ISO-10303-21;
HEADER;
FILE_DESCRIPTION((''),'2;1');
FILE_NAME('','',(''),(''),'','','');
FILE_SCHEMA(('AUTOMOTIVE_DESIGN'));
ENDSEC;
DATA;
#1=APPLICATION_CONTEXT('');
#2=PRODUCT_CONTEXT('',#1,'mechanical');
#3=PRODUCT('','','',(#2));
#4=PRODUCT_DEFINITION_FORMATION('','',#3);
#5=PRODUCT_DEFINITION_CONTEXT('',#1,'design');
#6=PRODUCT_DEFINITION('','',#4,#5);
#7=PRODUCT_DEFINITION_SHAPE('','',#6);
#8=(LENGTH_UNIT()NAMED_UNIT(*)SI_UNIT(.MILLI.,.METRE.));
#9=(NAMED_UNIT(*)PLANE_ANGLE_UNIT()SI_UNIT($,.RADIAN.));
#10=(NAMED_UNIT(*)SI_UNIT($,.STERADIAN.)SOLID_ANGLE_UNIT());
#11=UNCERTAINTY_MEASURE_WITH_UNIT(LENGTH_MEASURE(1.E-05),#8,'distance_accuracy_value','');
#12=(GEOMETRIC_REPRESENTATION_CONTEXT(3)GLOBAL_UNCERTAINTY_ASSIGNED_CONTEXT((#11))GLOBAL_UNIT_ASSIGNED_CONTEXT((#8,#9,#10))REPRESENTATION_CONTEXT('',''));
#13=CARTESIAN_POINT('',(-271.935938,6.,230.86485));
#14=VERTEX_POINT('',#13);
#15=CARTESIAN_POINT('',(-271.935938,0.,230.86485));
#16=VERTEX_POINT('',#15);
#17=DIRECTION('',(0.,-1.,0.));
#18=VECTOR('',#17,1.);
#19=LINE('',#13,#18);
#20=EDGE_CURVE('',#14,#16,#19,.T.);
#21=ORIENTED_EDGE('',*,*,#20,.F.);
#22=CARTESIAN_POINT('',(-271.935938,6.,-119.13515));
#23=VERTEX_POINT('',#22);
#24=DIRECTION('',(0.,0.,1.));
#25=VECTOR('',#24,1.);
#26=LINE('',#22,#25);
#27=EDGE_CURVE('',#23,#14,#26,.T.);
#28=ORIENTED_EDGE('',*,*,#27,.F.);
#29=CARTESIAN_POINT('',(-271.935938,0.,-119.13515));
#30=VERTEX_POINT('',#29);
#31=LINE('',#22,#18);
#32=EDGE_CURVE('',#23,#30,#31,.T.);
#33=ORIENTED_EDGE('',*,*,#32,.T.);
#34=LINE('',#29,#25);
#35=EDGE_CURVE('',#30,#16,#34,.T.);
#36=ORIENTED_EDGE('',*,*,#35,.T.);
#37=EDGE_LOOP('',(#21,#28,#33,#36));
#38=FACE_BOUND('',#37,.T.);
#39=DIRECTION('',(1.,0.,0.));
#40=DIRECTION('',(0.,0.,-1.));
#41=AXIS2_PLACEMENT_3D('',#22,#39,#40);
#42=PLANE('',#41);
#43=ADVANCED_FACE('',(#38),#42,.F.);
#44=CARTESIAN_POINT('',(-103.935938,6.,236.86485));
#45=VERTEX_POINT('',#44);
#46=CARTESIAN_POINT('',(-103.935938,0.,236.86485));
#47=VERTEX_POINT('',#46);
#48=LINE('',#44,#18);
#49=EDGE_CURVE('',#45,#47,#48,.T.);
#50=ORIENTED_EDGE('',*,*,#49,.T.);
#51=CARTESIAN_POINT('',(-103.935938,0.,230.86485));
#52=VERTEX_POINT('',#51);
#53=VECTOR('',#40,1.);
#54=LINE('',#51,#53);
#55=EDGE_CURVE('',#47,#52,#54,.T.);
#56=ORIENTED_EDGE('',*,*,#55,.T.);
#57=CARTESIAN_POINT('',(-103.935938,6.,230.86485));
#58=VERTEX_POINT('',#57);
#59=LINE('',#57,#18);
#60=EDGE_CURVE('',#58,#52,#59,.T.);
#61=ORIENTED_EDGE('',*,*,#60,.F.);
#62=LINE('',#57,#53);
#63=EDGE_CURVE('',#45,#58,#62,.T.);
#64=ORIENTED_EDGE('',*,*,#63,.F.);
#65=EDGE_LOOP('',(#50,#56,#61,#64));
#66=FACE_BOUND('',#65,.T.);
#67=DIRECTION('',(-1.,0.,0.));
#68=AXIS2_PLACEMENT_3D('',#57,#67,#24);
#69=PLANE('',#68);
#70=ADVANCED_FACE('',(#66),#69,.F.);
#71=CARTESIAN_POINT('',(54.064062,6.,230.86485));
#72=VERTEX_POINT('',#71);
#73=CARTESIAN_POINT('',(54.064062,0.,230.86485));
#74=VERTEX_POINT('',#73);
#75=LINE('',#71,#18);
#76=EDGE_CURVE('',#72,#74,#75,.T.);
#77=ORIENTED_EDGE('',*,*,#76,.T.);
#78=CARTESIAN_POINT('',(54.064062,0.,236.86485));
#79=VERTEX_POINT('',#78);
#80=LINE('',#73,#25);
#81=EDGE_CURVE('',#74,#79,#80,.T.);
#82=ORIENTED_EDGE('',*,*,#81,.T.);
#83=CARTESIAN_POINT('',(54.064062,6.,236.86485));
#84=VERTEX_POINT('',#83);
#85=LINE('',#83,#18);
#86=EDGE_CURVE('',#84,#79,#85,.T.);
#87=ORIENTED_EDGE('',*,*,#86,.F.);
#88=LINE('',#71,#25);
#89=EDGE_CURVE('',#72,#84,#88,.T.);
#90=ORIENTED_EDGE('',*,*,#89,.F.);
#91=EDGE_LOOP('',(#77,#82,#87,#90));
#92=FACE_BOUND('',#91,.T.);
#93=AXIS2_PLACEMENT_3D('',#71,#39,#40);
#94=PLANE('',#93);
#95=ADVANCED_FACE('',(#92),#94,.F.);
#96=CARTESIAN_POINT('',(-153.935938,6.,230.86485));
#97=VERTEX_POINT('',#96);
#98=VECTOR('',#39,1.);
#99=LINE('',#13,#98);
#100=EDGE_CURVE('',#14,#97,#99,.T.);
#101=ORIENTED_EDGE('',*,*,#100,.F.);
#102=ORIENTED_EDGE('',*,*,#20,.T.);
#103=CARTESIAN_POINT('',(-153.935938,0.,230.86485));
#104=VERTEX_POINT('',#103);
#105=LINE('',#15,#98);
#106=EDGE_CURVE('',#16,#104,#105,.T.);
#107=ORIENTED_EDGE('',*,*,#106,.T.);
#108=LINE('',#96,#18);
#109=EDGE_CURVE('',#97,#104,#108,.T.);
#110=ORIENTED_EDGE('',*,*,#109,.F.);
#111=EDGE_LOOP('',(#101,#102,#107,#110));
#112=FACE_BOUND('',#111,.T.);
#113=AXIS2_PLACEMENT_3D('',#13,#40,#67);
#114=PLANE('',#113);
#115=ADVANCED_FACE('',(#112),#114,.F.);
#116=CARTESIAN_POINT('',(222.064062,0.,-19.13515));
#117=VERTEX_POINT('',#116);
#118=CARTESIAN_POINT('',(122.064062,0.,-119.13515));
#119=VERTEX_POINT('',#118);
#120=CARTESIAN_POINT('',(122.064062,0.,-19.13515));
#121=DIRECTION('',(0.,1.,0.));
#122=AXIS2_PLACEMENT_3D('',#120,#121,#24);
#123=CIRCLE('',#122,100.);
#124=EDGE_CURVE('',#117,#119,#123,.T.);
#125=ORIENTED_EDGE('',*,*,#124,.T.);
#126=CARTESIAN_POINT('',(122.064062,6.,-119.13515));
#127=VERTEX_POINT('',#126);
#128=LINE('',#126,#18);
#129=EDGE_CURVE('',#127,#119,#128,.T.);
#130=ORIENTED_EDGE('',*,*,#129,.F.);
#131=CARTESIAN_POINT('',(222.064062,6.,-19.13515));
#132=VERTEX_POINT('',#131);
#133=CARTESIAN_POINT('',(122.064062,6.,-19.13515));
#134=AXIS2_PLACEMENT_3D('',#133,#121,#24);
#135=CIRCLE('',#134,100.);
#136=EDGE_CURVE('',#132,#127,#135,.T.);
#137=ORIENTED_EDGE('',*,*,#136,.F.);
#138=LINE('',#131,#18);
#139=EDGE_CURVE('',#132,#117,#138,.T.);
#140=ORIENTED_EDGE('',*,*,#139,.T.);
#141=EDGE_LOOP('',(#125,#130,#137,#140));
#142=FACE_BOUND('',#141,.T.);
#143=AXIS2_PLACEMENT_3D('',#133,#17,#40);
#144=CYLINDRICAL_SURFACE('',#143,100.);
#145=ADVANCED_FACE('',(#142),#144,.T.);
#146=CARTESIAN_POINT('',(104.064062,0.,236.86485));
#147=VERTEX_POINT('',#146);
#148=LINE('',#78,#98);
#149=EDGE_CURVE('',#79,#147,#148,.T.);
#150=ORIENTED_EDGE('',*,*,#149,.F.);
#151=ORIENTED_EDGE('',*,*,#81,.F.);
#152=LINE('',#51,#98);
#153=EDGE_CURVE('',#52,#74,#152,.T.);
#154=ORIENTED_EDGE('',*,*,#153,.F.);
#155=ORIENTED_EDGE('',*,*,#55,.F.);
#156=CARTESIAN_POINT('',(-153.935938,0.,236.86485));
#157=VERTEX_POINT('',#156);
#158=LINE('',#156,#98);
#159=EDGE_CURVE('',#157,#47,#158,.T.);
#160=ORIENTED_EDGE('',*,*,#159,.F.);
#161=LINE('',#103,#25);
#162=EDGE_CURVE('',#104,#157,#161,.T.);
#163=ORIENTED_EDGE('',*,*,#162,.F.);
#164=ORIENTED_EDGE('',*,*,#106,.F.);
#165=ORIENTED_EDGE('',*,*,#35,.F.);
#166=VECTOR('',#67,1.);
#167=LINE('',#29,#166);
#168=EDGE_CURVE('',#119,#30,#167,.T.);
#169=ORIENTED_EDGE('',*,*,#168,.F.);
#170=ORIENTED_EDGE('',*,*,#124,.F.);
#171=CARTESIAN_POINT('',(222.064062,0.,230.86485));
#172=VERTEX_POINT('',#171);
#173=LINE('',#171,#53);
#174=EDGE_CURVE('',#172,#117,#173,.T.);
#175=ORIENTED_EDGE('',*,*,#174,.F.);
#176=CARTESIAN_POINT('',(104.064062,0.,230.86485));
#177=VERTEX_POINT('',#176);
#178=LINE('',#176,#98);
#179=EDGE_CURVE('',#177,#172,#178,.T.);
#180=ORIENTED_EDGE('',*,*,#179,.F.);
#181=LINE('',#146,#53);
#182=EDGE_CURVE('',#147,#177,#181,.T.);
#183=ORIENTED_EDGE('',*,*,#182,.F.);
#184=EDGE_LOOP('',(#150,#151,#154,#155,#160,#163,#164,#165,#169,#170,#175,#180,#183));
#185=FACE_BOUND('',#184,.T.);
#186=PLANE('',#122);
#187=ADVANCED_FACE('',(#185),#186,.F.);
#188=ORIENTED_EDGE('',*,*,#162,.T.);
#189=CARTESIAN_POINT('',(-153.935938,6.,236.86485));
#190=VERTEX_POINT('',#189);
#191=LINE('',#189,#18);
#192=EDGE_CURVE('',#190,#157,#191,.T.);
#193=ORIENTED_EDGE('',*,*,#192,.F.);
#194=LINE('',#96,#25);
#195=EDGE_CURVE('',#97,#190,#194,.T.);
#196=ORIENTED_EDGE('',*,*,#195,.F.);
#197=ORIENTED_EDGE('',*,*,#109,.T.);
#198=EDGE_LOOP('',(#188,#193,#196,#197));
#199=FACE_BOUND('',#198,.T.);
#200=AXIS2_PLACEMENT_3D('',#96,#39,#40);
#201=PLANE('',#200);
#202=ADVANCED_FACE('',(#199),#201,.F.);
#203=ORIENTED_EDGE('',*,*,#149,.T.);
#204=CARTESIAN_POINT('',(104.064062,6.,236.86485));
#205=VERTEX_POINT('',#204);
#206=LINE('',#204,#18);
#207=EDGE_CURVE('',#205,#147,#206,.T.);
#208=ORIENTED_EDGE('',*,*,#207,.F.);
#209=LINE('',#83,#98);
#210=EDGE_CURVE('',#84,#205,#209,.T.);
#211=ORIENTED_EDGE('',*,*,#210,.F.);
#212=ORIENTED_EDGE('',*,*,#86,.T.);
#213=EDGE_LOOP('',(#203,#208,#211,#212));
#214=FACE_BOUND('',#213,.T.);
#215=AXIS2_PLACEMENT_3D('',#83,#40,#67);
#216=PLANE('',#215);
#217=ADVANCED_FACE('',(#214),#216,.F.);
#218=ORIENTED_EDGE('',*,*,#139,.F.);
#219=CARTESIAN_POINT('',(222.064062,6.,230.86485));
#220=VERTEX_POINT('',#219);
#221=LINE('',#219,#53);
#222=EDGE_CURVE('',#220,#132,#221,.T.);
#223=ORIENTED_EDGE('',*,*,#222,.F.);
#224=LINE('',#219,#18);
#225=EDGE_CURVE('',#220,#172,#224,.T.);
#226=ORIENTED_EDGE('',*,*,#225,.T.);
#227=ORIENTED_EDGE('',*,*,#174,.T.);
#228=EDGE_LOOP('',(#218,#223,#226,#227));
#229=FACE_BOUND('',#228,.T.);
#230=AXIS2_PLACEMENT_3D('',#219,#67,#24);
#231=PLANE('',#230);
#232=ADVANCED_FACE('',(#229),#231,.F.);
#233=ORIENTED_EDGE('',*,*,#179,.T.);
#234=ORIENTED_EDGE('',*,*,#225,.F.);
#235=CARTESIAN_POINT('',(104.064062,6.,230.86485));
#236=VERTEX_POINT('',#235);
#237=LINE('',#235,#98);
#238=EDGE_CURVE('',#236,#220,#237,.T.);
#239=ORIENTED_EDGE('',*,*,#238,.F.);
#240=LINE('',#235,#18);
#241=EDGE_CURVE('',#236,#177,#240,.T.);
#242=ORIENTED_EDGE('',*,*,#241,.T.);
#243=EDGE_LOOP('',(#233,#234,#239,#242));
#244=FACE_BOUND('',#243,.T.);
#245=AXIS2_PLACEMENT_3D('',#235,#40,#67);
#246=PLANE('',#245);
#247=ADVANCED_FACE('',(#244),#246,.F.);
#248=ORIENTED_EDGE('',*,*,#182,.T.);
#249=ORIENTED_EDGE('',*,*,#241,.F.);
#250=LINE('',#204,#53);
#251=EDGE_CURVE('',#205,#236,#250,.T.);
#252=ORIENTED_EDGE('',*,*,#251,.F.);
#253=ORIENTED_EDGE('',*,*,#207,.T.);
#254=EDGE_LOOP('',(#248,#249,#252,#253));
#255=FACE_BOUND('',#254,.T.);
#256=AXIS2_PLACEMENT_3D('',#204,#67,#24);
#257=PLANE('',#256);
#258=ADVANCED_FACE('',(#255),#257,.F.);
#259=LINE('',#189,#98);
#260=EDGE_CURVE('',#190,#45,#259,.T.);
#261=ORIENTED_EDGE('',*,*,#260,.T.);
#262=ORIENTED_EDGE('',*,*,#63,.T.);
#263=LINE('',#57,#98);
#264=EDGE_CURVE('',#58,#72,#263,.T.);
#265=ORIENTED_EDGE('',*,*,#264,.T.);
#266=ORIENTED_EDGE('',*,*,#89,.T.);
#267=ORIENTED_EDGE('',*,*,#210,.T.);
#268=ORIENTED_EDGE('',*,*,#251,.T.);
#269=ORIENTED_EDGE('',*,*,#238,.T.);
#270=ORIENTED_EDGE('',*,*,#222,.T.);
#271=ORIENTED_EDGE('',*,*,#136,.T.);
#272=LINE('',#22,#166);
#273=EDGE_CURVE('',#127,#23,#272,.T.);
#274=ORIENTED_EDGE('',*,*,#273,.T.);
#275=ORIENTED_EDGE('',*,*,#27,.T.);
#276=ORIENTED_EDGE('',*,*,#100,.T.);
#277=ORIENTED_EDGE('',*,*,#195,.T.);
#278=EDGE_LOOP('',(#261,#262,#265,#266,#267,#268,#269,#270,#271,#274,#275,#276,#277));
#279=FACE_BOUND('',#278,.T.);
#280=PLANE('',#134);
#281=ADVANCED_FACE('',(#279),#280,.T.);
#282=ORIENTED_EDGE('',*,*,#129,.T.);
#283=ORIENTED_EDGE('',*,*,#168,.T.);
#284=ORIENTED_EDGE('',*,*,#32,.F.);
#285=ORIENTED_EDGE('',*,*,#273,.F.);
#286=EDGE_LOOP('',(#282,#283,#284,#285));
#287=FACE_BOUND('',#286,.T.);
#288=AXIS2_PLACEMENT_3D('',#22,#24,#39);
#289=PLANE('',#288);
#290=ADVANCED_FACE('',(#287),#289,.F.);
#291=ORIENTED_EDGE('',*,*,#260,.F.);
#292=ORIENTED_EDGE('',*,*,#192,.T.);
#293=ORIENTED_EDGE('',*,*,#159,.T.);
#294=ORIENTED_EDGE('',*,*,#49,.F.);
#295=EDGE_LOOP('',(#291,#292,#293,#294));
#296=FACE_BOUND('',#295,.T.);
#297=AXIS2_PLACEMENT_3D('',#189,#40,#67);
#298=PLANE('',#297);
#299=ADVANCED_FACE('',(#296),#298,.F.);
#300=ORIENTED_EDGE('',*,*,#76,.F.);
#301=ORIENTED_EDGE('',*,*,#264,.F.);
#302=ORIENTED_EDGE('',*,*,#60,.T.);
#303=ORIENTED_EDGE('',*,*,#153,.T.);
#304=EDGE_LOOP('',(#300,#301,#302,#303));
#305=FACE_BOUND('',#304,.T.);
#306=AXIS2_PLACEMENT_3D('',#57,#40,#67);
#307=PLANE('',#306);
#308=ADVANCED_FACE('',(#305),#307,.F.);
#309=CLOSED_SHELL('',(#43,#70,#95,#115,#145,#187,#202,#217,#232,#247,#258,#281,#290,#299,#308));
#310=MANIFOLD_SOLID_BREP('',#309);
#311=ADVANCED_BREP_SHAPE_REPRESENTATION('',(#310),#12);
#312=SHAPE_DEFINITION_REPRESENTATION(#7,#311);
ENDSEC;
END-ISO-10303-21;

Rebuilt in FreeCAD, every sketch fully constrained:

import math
import FreeCAD as App
import Part
import Sketcher

V = App.Vector
Q = App.Units.Quantity

doc = App.newDocument("Part")
body = doc.addObject("PartDesign::Body", "Body")

# Sketch on XZ plane
sketch1 = doc.addObject("Sketcher::SketchObject", "Sketch")
body.addObject(sketch1)
sketch1.AttachmentSupport = (doc.XZ_Plane, [""])
sketch1.MapMode = "FlatFace"
sketch1.addGeometry([
    Part.LineSegment(V(54, 231, 0), V(54, 237, 0)),  # 0
    Part.LineSegment(V(54, 237, 0), V(104, 237, 0)),  # 1
    Part.LineSegment(V(104, 237, 0), V(104, 231, 0)),  # 2
    Part.LineSegment(V(104, 231, 0), V(222, 231, 0)),  # 3
    Part.LineSegment(V(222, 231, 0), V(222, -19, 0)),  # 4
    Part.ArcOfCircle(Part.Circle(V(122, -19, 0), V(0, 0, 1), 100), math.radians(-90), math.radians(0)),  # 5
    Part.LineSegment(V(122, -119, 0), V(-272, -119, 0)),  # 6
    Part.LineSegment(V(-272, -119, 0), V(-272, 231, 0)),  # 7
    Part.LineSegment(V(-272, 231, 0), V(-154, 231, 0)),  # 8
    Part.LineSegment(V(-154, 231, 0), V(-154, 237, 0)),  # 9
    Part.LineSegment(V(-154, 237, 0), V(-104, 237, 0)),  # 10
    Part.LineSegment(V(-104, 237, 0), V(-104, 231, 0)),  # 11
    Part.LineSegment(V(-104, 231, 0), V(54, 231, 0)),  # 12
], False)
sketch1.addConstraint([
    Sketcher.Constraint("Coincident", 0, 2, 1, 1),
    Sketcher.Constraint("Coincident", 1, 2, 2, 1),
    Sketcher.Constraint("Coincident", 2, 2, 3, 1),
    Sketcher.Constraint("Coincident", 3, 2, 4, 1),
    Sketcher.Constraint("Tangent", 4, 2, 5, 2),
    Sketcher.Constraint("Tangent", 5, 1, 6, 1),
    Sketcher.Constraint("Coincident", 6, 2, 7, 1),
    Sketcher.Constraint("Coincident", 7, 2, 8, 1),
    Sketcher.Constraint("Coincident", 8, 2, 9, 1),
    Sketcher.Constraint("Coincident", 9, 2, 10, 1),
    Sketcher.Constraint("Coincident", 10, 2, 11, 1),
    Sketcher.Constraint("Coincident", 11, 2, 12, 1),
    Sketcher.Constraint("Coincident", 12, 2, 0, 1),
    Sketcher.Constraint("Vertical", 0),
    Sketcher.Constraint("Horizontal", 1),
    Sketcher.Constraint("Vertical", 2),
    Sketcher.Constraint("Horizontal", 3),
    Sketcher.Constraint("Vertical", 4),
    Sketcher.Constraint("Horizontal", 6),
    Sketcher.Constraint("Vertical", 7),
    Sketcher.Constraint("Horizontal", 8),
    Sketcher.Constraint("Vertical", 9),
    Sketcher.Constraint("Horizontal", 10),
    Sketcher.Constraint("Vertical", 11),
    Sketcher.Constraint("Horizontal", 12),
    Sketcher.Constraint("Horizontal", 3, 2, 7, 2),
    Sketcher.Constraint("Horizontal", 1, 2, 9, 2),
    Sketcher.Constraint("Horizontal", 8, 2, 11, 2),
    Sketcher.Constraint("Equal", 3, 8),
    Sketcher.Constraint("Equal", 1, 10),
    Sketcher.Constraint("Radius", 5, Q("100 mm")),
    Sketcher.Constraint("DistanceX", 1, 1, 1, 2, Q("50 mm")),
    Sketcher.Constraint("DistanceX", 3, 1, 3, 2, Q("118 mm")),
    Sketcher.Constraint("DistanceX", 6, 2, 6, 1, Q("394 mm")),
    Sketcher.Constraint("DistanceY", 0, 1, 0, 2, Q("6 mm")),
    Sketcher.Constraint("DistanceY", 4, 2, 4, 1, Q("250 mm")),
    Sketcher.Constraint("DistanceY", 5, 3, -1, 1, Q("19.13515 mm")),
    Sketcher.Constraint("DistanceX", -1, 1, 5, 3, Q("122.064062 mm")),
])
pad1 = doc.addObject("PartDesign::Pad", "Pad")
body.addObject(pad1)
pad1.Profile = sketch1
pad1.Length = 6
pad1.Reversed = True

doc.recompute()
